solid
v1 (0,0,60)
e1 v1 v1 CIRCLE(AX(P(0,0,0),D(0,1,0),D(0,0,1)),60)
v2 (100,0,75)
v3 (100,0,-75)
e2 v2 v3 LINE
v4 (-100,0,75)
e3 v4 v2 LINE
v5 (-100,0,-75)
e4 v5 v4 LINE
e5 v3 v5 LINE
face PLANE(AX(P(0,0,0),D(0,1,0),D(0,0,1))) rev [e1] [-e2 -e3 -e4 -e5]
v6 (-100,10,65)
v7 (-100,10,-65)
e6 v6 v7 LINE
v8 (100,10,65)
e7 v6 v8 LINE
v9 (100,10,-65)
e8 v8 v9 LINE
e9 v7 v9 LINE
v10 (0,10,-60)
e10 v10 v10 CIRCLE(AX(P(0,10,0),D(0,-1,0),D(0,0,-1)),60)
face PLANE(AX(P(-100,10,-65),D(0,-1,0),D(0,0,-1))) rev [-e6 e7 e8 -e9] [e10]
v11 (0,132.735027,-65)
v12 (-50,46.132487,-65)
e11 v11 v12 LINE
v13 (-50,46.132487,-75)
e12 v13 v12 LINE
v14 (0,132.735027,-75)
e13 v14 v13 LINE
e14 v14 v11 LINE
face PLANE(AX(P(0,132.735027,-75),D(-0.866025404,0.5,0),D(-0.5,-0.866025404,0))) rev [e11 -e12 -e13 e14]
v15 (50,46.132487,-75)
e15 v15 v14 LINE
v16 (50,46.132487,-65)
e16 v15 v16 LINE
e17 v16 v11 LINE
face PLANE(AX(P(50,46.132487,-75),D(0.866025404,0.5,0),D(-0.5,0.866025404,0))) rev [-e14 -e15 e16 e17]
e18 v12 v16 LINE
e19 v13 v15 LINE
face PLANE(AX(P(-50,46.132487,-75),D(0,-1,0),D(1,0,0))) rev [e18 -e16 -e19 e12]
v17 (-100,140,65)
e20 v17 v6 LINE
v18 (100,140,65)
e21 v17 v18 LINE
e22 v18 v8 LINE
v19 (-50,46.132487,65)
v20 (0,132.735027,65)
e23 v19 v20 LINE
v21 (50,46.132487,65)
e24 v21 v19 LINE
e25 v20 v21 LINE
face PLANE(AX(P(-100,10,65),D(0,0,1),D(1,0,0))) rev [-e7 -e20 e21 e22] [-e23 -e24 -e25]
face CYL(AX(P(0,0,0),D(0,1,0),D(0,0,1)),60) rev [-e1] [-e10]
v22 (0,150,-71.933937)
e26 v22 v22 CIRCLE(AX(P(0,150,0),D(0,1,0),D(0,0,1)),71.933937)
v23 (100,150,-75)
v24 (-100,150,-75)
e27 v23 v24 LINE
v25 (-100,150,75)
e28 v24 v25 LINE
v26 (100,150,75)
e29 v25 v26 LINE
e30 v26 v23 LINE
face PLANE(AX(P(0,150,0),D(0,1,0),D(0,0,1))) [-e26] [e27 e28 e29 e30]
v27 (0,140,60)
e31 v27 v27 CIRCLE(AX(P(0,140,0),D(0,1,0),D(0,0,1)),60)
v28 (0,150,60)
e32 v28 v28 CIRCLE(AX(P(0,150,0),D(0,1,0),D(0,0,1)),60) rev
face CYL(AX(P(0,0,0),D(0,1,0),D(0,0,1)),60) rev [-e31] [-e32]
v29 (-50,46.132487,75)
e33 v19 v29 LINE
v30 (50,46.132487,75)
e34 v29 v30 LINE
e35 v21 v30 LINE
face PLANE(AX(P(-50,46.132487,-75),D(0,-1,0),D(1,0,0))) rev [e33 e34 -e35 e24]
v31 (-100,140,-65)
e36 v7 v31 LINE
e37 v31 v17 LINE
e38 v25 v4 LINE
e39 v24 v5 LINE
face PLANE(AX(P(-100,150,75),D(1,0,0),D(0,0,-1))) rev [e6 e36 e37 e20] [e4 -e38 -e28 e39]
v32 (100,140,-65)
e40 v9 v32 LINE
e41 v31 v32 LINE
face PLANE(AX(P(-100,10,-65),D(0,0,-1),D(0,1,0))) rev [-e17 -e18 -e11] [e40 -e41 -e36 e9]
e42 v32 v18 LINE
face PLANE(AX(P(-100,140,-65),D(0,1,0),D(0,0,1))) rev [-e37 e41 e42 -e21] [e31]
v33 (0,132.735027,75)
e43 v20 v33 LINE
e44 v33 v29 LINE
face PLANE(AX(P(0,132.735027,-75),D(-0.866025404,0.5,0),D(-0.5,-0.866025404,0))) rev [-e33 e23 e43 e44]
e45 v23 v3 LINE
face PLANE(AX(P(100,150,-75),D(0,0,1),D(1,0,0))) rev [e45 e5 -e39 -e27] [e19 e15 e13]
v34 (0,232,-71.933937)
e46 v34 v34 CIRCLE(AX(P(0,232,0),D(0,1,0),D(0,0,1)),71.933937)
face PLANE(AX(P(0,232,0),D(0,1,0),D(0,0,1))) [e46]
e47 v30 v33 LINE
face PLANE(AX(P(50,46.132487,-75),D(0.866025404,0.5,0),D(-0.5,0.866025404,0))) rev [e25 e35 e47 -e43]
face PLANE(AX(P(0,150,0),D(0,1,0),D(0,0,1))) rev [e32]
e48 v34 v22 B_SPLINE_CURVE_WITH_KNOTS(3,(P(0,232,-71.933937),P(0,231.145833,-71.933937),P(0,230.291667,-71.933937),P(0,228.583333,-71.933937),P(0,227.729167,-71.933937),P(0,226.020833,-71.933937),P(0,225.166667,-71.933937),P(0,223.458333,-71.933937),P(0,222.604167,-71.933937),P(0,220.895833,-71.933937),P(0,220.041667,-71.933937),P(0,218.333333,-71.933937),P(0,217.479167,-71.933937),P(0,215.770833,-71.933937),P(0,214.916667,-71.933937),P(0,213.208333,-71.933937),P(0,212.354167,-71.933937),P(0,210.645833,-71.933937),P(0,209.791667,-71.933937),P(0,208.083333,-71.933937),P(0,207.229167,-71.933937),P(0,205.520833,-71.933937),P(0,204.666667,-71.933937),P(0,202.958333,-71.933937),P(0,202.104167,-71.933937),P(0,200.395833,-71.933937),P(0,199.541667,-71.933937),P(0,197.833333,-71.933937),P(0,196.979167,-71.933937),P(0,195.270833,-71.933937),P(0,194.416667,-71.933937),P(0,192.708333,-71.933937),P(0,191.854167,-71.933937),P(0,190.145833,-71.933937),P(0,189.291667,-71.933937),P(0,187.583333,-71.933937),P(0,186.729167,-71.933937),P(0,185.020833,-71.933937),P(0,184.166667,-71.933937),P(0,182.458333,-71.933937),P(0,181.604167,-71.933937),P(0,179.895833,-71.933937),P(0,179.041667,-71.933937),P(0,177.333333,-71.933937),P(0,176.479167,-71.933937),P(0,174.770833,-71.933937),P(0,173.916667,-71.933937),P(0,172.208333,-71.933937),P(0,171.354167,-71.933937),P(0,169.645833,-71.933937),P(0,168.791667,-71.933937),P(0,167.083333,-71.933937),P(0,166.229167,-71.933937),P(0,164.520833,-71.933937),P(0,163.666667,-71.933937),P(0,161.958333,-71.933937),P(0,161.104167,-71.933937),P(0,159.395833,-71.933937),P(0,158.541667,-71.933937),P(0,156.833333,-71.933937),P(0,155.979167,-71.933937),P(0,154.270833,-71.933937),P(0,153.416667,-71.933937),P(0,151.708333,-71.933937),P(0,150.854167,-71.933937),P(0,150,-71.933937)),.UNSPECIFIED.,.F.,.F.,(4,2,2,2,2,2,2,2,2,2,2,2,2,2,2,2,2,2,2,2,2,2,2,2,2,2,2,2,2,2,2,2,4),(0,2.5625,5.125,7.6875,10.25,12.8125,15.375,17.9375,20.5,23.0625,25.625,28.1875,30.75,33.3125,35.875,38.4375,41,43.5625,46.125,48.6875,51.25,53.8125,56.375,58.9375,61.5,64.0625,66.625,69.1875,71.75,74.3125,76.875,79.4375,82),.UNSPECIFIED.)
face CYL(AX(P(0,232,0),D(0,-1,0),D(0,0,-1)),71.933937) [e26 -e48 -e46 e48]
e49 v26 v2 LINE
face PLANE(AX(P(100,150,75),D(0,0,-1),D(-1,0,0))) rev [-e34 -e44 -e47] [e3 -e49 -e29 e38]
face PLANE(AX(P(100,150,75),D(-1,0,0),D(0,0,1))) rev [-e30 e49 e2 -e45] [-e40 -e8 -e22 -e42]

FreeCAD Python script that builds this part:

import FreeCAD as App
import Part
import Sketcher

V = App.Vector
Q = App.Units.Quantity


def add_polygon(sketch, points):
    """Adds a closed chain of lines whose ends are joined by coincident constraints."""
    first, n = sketch.GeometryCount, len(points)
    for a, b in zip(points, points[1:] + points[:1]):
        sketch.addGeometry(Part.LineSegment(App.Vector(*a, 0), App.Vector(*b, 0)), False)
    for i in range(n):
        sketch.addConstraint(Sketcher.Constraint("Coincident", first + i, 2, first + (i + 1) % n, 1))

doc = App.newDocument("Part")
body = doc.addObject("PartDesign::Body", "Body")

sketch1 = body.newObject("Sketcher::SketchObject", "Sketch")
sketch1.AttachmentSupport = (doc.getObject("XZ_Plane"), [""])
sketch1.MapMode = "FlatFace"
add_polygon(sketch1, [(-100, -75), (-100, 75), (100, 75), (100, -75)])
sketch1.addConstraint([
    Sketcher.Constraint("Vertical", 0),
    Sketcher.Constraint("Horizontal", 1),
    Sketcher.Constraint("Vertical", 2),
    Sketcher.Constraint("Horizontal", 3),
    Sketcher.Constraint("Symmetric", 0, 2, 2, 2, -1, 1),
    Sketcher.Constraint("DistanceX", 1, 1, 1, 2, 200.0),
    Sketcher.Constraint("DistanceY", 0, 1, 0, 2, 150.0),
])
pad1 = body.newObject("PartDesign::Pad", "Pad")
pad1.Profile = sketch1
pad1.Length = 150
pad1.Reversed = True

sketch2 = body.newObject("Sketcher::SketchObject", "Sketch001")
sketch2.AttachmentSupport = (doc.getObject("XY_Plane"), [""])
sketch2.MapMode = "FlatFace"
sketch2.AttachmentOffset = App.Placement(V(0, 0, 75), App.Rotation())
add_polygon(sketch2, [(0, 133), (-50, 46), (50, 46)])
sketch2.addConstraint([
    Sketcher.Constraint("Horizontal", 1),
    Sketcher.Constraint("PointOnObject", 2, 2, -2),
    Sketcher.Constraint("Equal", 0, 2),
    Sketcher.Constraint("DistanceX", 1, 1, 1, 2, 100.0),
    Sketcher.Constraint("Angle", 0, Q("-120 deg")),
    Sketcher.Constraint("DistanceY", -1, 1, 0, 2, 46.132487),
])
pocket1 = body.newObject("PartDesign::Pocket", "Pocket")
pocket1.Profile = sketch2
pocket1.Type = "ThroughAll"

sketch3 = body.newObject("Sketcher::SketchObject", "Sketch002")
sketch3.AttachmentSupport = (doc.getObject("YZ_Plane"), [""])
sketch3.MapMode = "FlatFace"
sketch3.AttachmentOffset = App.Placement(V(0, 0, 100), App.Rotation())
add_polygon(sketch3, [(140, 65), (10, 65), (10, -65), (140, -65)])
sketch3.addConstraint([
    Sketcher.Constraint("Horizontal", 0),
    Sketcher.Constraint("Vertical", 1),
    Sketcher.Constraint("Horizontal", 2),
    Sketcher.Constraint("Vertical", 3),
    Sketcher.Constraint("Equal", 2, 1),
    Sketcher.Constraint("DistanceX", 0, 2, 0, 1, 130.0),
    Sketcher.Constraint("DistanceX", -1, 1, 0, 2, 10.0),
    Sketcher.Constraint("DistanceY", -1, 1, 0, 2, 65.0),
])
pocket2 = body.newObject("PartDesign::Pocket", "Pocket001")
pocket2.Profile = sketch3
pocket2.Type = "ThroughAll"

sketch4 = body.newObject("Sketcher::SketchObject", "Sketch003")
sketch4.AttachmentSupport = (doc.getObject("XZ_Plane"), [""])
sketch4.MapMode = "FlatFace"
sketch4.AttachmentOffset = App.Placement(V(0, 0, -150), App.Rotation())
sketch4.addGeometry(Part.Circle(V(0, 0, 0), V(0, 0, 1), 60), False)
sketch4.addConstraint([
    Sketcher.Constraint("Coincident", 0, 3, -1, 1),
    Sketcher.Constraint("Diameter", 0, 120.0),
])
pocket3 = body.newObject("PartDesign::Pocket", "Pocket002")
pocket3.Profile = sketch4
pocket3.Type = "ThroughAll"
pocket3.Reversed = True

sketch5 = body.newObject("Sketcher::SketchObject", "Sketch004")
sketch5.AttachmentSupport = (doc.getObject("XZ_Plane"), [""])
sketch5.MapMode = "FlatFace"
sketch5.AttachmentOffset = App.Placement(V(0, 0, -150), App.Rotation())
sketch5.addGeometry(Part.Circle(V(0, 0, 0), V(0, 0, 1), 72), False)
sketch5.addConstraint([
    Sketcher.Constraint("Coincident", 0, 3, -1, 1),
    Sketcher.Constraint("Diameter", 0, 143.867874),
])
pad2 = body.newObject("PartDesign::Pad", "Pad001")
pad2.Profile = sketch5
pad2.Length = 82
pad2.Reversed = True

doc.recompute()
